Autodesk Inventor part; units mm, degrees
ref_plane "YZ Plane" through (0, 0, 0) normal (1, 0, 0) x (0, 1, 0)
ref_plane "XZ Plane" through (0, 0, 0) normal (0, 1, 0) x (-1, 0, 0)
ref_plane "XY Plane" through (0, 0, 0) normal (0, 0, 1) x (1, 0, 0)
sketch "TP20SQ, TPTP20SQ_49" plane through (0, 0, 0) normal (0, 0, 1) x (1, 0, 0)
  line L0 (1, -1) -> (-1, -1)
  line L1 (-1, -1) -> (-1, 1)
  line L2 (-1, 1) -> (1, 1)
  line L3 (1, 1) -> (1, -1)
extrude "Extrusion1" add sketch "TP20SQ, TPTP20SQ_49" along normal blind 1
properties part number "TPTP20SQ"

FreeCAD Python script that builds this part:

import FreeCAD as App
import Part
import Sketcher


def add_polygon(sketch, points):
    """Adds a closed chain of lines whose ends are joined by coincident constraints."""
    first, n = sketch.GeometryCount, len(points)
    for a, b in zip(points, points[1:] + points[:1]):
        sketch.addGeometry(Part.LineSegment(App.Vector(*a, 0), App.Vector(*b, 0)), False)
    for i in range(n):
        sketch.addConstraint(Sketcher.Constraint("Coincident", first + i, 2, first + (i + 1) % n, 1))

doc = App.newDocument("Part")
params = doc.addObject("Spreadsheet::Sheet", "Params")
for row, (alias, value) in enumerate([
    ("sketch1_width", "2 mm"),
    ("pad1_length", "1 mm"),
], start=1):
    params.set(f"A{row}", alias)
    params.set(f"B{row}", "=" + value)
    params.setAlias(f"B{row}", alias)

body = doc.addObject("PartDesign::Body", "Body")

# Sketch on XY plane
sketch1 = body.newObject("Sketcher::SketchObject", "Sketch")
sketch1.AttachmentSupport = (doc.getObject("XY_Plane"), [""])
sketch1.MapMode = "FlatFace"
add_polygon(sketch1, [(-1, -1), (1, -1), (1, 1), (-1, 1)])  # lines 0-3
sketch1.addConstraint(Sketcher.Constraint("Horizontal", 0))
sketch1.addConstraint(Sketcher.Constraint("Vertical", 1))
sketch1.addConstraint(Sketcher.Constraint("Horizontal", 2))
sketch1.addConstraint(Sketcher.Constraint("Vertical", 3))
sketch1.addConstraint(Sketcher.Constraint("Symmetric", 0, 2, 2, 2, -1, 1))
sketch1.addConstraint(Sketcher.Constraint("Equal", 2, 1))
sketch1.addConstraint(Sketcher.Constraint("DistanceX", 0, 1, 0, 2, 2.0))
sketch1.setExpression("Constraints[10]", "Params.sketch1_width")
pad1 = body.newObject("PartDesign::Pad", "Pad")
pad1.Profile = sketch1
pad1.setExpression("Length", "Params.pad1_length")

doc.recompute()
